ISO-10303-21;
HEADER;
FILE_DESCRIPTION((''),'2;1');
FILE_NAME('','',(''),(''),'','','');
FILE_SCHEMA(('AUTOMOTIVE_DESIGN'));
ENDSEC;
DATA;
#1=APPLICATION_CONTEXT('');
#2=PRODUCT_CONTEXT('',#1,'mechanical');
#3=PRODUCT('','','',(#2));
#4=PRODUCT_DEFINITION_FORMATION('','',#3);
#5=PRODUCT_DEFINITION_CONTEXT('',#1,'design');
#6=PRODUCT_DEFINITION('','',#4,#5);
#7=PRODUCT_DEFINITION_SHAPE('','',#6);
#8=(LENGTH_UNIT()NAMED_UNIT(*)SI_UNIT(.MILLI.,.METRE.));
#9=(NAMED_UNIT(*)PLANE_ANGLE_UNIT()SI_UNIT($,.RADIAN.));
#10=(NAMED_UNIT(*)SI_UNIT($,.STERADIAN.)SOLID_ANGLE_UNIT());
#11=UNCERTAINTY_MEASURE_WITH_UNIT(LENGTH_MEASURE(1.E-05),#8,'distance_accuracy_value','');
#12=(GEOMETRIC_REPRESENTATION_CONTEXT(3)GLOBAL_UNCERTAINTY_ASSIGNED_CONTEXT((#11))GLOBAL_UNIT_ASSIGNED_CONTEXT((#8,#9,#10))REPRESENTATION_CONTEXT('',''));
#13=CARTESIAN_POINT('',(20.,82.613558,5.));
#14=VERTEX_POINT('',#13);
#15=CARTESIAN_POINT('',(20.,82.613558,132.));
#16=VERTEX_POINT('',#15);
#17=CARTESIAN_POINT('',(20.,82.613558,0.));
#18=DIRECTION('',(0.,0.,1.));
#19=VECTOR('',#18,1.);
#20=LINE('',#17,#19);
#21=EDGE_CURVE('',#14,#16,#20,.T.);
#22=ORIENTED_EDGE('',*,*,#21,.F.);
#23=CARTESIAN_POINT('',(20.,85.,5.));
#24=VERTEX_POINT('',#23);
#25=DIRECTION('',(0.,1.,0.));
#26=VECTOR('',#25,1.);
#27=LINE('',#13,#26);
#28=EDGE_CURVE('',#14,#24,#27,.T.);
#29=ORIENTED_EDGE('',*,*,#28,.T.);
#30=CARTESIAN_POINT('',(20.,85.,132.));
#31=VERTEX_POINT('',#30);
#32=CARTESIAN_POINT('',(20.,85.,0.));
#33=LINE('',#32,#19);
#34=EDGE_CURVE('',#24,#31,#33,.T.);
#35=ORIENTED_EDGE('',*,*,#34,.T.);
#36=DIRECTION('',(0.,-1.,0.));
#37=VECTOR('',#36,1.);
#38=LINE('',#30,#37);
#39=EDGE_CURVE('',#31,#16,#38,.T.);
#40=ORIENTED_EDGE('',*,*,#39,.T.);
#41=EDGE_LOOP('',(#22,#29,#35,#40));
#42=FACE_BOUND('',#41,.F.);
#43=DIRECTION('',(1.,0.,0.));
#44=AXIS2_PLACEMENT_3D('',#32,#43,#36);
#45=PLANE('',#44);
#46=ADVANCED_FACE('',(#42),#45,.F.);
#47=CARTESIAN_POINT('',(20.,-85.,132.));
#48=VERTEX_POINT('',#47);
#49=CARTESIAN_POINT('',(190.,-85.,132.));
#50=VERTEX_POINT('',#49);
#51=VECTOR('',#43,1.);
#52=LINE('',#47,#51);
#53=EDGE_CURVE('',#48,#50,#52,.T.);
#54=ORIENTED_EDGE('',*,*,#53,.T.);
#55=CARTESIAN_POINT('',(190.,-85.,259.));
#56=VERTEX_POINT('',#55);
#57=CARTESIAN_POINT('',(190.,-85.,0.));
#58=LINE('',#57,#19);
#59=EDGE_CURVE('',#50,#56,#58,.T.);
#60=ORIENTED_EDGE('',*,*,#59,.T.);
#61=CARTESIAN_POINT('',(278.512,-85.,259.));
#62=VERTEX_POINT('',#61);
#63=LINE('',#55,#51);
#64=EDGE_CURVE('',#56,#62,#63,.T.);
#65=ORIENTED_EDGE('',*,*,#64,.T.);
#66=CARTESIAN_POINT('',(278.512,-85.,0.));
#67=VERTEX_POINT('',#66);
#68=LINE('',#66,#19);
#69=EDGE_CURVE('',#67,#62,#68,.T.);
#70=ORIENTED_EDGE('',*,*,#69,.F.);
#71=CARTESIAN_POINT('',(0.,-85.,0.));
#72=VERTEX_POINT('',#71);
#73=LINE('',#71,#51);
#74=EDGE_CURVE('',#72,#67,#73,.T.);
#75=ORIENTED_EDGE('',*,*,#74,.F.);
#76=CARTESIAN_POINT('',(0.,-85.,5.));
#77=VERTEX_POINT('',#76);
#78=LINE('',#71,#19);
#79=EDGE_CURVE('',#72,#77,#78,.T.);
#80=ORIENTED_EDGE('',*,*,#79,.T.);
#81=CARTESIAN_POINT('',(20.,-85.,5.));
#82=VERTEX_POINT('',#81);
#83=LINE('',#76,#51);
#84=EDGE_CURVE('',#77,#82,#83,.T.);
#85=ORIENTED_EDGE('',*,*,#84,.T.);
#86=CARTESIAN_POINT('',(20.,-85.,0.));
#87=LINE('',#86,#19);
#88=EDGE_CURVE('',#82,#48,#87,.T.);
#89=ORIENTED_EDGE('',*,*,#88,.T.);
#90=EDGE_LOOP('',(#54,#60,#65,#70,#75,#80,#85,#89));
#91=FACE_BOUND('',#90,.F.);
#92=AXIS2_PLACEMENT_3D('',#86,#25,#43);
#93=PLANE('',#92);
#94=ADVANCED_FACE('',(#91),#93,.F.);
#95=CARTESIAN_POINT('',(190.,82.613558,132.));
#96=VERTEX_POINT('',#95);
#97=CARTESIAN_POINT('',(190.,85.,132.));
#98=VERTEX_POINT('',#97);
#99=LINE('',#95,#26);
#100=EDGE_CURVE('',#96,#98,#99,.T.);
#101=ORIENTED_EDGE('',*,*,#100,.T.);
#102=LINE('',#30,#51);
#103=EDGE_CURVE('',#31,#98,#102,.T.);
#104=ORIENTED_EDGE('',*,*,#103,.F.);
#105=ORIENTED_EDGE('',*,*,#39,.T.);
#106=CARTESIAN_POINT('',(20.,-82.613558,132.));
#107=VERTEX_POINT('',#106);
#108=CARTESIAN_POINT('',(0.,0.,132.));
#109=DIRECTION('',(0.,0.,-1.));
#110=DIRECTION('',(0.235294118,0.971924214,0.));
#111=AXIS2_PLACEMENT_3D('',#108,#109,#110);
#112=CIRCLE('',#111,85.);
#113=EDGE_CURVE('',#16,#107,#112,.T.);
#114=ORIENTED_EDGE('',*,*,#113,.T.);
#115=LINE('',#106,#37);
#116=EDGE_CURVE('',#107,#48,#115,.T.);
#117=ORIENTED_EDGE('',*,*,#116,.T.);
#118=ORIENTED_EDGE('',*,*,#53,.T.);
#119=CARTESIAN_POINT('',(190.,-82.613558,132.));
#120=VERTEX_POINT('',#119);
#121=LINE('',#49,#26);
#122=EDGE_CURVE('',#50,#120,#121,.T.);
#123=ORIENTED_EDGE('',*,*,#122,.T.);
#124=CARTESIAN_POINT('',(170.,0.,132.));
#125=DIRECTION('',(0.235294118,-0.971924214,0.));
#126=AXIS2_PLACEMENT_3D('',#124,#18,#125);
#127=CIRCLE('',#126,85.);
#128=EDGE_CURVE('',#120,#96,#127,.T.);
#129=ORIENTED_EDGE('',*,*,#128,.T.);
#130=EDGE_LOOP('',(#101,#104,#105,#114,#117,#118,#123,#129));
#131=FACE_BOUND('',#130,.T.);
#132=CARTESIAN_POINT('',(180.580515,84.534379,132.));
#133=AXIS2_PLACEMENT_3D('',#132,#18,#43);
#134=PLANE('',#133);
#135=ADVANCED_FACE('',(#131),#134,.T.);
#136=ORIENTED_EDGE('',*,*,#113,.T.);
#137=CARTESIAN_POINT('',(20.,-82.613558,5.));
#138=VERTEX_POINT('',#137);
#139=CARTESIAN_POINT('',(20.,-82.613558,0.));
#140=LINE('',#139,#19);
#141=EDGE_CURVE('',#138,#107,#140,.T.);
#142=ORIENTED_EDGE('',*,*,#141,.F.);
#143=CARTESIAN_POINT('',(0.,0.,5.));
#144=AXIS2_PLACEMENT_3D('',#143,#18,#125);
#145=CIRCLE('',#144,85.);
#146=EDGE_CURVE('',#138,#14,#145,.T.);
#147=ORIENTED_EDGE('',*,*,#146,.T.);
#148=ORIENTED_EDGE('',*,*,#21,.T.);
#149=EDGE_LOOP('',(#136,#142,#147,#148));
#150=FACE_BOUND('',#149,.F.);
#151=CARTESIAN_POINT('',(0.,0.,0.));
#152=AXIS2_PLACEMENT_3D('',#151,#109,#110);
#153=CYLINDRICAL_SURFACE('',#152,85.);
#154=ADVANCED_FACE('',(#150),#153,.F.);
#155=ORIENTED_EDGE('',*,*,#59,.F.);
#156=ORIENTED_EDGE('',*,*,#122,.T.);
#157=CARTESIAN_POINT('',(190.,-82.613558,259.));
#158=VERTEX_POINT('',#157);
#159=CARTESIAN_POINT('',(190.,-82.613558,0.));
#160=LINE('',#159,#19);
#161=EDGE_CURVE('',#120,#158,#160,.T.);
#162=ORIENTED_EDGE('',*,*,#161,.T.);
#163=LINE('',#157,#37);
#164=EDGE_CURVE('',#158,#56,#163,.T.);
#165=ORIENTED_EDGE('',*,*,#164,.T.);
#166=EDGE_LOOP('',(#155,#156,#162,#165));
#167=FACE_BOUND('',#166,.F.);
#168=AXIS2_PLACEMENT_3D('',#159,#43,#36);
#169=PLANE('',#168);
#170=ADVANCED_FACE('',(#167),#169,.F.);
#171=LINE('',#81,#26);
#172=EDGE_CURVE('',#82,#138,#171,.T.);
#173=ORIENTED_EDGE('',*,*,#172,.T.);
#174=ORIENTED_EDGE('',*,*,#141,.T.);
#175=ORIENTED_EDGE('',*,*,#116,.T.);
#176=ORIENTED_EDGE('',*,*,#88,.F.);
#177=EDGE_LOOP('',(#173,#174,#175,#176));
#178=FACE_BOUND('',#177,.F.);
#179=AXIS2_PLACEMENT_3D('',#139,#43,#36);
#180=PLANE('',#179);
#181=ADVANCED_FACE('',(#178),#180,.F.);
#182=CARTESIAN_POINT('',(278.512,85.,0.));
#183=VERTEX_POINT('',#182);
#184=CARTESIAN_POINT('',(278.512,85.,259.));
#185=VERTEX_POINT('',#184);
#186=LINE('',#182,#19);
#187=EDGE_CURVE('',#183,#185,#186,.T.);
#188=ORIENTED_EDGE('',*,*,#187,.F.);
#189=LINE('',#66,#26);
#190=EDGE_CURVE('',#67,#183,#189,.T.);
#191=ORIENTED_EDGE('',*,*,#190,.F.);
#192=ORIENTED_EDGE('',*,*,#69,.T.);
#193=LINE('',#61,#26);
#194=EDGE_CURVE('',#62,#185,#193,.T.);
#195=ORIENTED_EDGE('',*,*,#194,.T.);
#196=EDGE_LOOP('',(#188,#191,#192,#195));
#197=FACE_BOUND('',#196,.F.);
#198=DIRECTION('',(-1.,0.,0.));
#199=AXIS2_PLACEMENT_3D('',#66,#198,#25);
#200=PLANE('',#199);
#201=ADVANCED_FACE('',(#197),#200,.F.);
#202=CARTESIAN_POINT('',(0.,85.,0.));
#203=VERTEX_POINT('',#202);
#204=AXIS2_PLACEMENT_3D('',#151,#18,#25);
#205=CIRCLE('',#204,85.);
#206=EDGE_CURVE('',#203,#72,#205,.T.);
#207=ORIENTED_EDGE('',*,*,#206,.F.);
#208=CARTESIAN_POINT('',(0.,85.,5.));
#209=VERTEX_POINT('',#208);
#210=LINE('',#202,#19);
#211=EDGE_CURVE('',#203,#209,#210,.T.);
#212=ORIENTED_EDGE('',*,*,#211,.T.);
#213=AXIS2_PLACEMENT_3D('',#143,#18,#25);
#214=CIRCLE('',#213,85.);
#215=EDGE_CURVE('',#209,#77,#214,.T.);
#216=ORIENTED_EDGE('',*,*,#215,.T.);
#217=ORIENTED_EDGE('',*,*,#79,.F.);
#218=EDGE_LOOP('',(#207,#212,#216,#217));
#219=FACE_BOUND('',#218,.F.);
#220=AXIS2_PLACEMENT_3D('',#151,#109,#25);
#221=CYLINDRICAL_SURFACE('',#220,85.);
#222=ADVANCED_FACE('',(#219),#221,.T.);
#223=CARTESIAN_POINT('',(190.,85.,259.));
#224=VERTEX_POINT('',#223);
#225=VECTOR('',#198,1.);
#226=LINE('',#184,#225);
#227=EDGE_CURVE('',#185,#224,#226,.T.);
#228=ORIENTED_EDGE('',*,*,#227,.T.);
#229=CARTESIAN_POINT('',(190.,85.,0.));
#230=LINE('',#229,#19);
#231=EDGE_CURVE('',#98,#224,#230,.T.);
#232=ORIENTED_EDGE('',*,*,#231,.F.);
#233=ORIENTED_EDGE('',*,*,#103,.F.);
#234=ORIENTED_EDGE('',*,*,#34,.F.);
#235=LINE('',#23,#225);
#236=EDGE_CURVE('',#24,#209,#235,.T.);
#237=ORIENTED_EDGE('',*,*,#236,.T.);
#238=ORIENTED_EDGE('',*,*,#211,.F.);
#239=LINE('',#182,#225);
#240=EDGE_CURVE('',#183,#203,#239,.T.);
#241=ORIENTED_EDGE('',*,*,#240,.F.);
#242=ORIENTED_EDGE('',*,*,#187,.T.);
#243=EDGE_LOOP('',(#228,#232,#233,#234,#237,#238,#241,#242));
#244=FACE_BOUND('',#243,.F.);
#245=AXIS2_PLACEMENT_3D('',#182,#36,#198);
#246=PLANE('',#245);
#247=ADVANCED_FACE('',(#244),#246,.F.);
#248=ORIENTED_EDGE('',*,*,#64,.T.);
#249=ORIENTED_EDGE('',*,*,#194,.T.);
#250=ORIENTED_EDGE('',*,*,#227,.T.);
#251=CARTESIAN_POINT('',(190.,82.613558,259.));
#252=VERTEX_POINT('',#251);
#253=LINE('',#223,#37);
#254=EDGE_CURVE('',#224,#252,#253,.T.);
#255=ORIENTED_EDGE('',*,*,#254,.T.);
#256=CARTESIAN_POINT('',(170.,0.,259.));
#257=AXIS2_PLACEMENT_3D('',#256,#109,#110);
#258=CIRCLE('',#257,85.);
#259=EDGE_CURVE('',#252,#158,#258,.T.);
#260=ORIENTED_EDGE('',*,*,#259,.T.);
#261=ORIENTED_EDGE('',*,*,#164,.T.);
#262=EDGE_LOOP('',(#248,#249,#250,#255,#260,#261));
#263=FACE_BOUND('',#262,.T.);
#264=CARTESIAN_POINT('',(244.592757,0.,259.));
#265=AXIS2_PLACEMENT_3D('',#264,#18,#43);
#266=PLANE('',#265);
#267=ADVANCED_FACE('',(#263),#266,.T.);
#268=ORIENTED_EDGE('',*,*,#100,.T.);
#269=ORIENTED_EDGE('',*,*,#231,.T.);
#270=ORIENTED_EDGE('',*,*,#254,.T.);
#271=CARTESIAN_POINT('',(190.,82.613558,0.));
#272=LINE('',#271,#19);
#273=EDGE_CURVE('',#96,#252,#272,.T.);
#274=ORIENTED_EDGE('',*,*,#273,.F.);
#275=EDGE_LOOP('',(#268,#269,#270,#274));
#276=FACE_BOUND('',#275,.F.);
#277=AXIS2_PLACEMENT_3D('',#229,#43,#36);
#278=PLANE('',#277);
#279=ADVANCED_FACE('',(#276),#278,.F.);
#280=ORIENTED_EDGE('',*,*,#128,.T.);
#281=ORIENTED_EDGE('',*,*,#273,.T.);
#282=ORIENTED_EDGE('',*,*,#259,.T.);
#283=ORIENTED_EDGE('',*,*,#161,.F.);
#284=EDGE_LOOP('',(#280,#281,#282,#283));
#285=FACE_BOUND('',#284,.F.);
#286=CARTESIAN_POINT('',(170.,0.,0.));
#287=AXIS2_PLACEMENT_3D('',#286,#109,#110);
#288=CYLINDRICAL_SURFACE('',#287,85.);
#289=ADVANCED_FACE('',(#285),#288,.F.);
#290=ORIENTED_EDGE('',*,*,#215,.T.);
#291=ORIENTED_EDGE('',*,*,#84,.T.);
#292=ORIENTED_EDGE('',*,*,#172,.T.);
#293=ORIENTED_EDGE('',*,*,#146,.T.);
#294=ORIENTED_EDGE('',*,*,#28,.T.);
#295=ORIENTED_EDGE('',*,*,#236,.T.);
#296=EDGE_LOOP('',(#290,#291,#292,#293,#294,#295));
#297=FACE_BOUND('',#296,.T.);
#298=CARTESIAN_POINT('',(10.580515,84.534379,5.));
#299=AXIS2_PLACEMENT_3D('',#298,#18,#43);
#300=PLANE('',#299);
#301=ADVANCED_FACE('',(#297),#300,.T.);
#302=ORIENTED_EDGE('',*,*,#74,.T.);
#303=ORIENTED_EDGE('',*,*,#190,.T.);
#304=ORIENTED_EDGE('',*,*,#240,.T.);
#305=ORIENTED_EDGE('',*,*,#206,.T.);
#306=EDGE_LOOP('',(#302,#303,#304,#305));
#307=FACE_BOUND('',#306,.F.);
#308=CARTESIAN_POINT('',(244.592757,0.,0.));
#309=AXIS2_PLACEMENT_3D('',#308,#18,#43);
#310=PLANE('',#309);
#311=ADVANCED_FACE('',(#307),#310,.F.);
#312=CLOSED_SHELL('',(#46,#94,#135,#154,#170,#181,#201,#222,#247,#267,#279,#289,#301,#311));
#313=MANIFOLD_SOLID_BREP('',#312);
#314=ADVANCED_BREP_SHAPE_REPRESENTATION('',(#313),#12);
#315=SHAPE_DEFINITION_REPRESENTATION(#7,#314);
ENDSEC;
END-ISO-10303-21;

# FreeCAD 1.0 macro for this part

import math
import FreeCAD as App
import Part
import Sketcher
Q = App.Units.Quantity

doc = App.newDocument("Part")
body = doc.addObject("PartDesign::Body", "Body")

# Sketch on XY plane
sketch1 = doc.addObject("Sketcher::SketchObject", "Sketch")
body.addObject(sketch1)
sketch1.AttachmentSupport = (doc.XY_Plane, [""])
sketch1.MapMode = "FlatFace"
sketch1.addGeometry([
    Part.ArcOfCircle(Part.Circle(App.Vector(0, 0, 0), App.Vector(0, 0, 1), 85), math.radians(-76), math.radians(76)),
    Part.ArcOfCircle(Part.Circle(App.Vector(0, 0, 0), App.Vector(0, 0, 1), 85), math.radians(76.39), math.radians(90)),
    Part.ArcOfCircle(Part.Circle(App.Vector(0, 0, 0), App.Vector(0, 0, 1), 85), math.radians(90), math.radians(270)),
    Part.ArcOfCircle(Part.Circle(App.Vector(0, 0, 0), App.Vector(0, 0, 1), 85), math.radians(-90), math.radians(-76.39)),
], False)
sketch1.addConstraint([
    Sketcher.Constraint("Tangent", 0, 2, 1, 1),
    Sketcher.Constraint("Tangent", 1, 2, 2, 1),
    Sketcher.Constraint("Tangent", 2, 2, 3, 1),
    Sketcher.Constraint("Tangent", 3, 2, 0, 1),
    Sketcher.Constraint("Coincident", 0, 3, -1, 1),
    Sketcher.Constraint("Equal", 0, 1),
    Sketcher.Constraint("PointOnObject", 1, 2, -2),
    Sketcher.Constraint("PointOnObject", 2, 2, -2),
    Sketcher.Constraint("Vertical", 0, 2, 3, 2),
    Sketcher.Constraint("Radius", 0, Q("85 mm")),
    Sketcher.Constraint("DistanceX", -1, 1, 0, 2, Q("20 mm")),
])
pad1 = doc.addObject("PartDesign::Pad", "Pad")
body.addObject(pad1)
pad1.Profile = sketch1
pad1.Length = 5

# Sketch on XY plane
sketch2 = doc.addObject("Sketcher::SketchObject", "Sketch001")
body.addObject(sketch2)
sketch2.AttachmentSupport = (doc.XY_Plane, [""])
sketch2.MapMode = "FlatFace"
sketch2.addGeometry([
    Part.ArcOfCircle(Part.Circle(App.Vector(0, 0, 0), App.Vector(0, 0, 1), 85), math.radians(76.39), math.radians(90)),  # 0
    Part.LineSegment(App.Vector(20, 82.6, 0), App.Vector(20, 85, 0)),  # 1
    Part.LineSegment(App.Vector(20, 85, 0), App.Vector(0, 85, 0)),  # 2
    Part.LineSegment(App.Vector(20, -85, 0), App.Vector(20, -82.6, 0)),  # 3
    Part.ArcOfCircle(Part.Circle(App.Vector(0, 0, 0), App.Vector(0, 0, 1), 85), math.radians(-90), math.radians(-76.39)),  # 4
    Part.LineSegment(App.Vector(0, -85, 0), App.Vector(20, -85, 0)),  # 5
], False)
sketch2.addConstraint([
    Sketcher.Constraint("Coincident", 0, 1, 1, 1),
    Sketcher.Constraint("Coincident", 1, 2, 2, 1),
    Sketcher.Constraint("Tangent", 2, 2, 0, 2),
    Sketcher.Constraint("Coincident", 3, 2, 4, 2),
    Sketcher.Constraint("Tangent", 4, 1, 5, 1),
    Sketcher.Constraint("Coincident", 5, 2, 3, 1),
    Sketcher.Constraint("Vertical", 1),
    Sketcher.Constraint("Horizontal", 2),
    Sketcher.Constraint("Vertical", 3),
    Sketcher.Constraint("Horizontal", 5),
    Sketcher.Constraint("Coincident", 0, 3, -1, 1),
    Sketcher.Constraint("Coincident", 4, 3, -1, 1),
    Sketcher.Constraint("Equal", 0, 4),
    Sketcher.Constraint("Vertical", 1, 2, 3, 2),
    Sketcher.Constraint("Radius", 0, Q("85 mm")),
    Sketcher.Constraint("DistanceX", 2, 2, 2, 1, Q("20 mm")),
])
pad2 = doc.addObject("PartDesign::Pad", "Pad001")
body.addObject(pad2)
pad2.Profile = sketch2
pad2.Length = 5

# Sketch on XY plane
sketch3 = doc.addObject("Sketcher::SketchObject", "Sketch002")
body.addObject(sketch3)
sketch3.AttachmentSupport = (doc.XY_Plane, [""])
sketch3.MapMode = "FlatFace"
sketch3.addGeometry([
    Part.LineSegment(App.Vector(20, -82.6, 0), App.Vector(20, -85, 0)),  # 0
    Part.LineSegment(App.Vector(20, -85, 0), App.Vector(170, -85, 0)),  # 1
    Part.ArcOfCircle(Part.Circle(App.Vector(170, 0, 0), App.Vector(0, 0, 1), 85), math.radians(-90), math.radians(-76.39)),  # 2
    Part.ArcOfCircle(Part.Circle(App.Vector(170, 0, 0), App.Vector(0, 0, 1), 85), math.radians(-76), math.radians(76)),  # 3
    Part.ArcOfCircle(Part.Circle(App.Vector(170, 0, 0), App.Vector(0, 0, 1), 85), math.radians(76.39), math.radians(90)),  # 4
    Part.LineSegment(App.Vector(170, 85, 0), App.Vector(20, 85, 0)),  # 5
    Part.LineSegment(App.Vector(20, 85, 0), App.Vector(20, 82.6, 0)),  # 6
    Part.ArcOfCircle(Part.Circle(App.Vector(0, 0, 0), App.Vector(0, 0, 1), 85), math.radians(-76), math.radians(76)),  # 7
], False)
sketch3.addConstraint([
    Sketcher.Constraint("Coincident", 0, 2, 1, 1),
    Sketcher.Constraint("Tangent", 1, 2, 2, 1),
    Sketcher.Constraint("Tangent", 2, 2, 3, 1),
    Sketcher.Constraint("Tangent", 3, 2, 4, 1),
    Sketcher.Constraint("Tangent", 4, 2, 5, 1),
    Sketcher.Constraint("Coincident", 5, 2, 6, 1),
    Sketcher.Constraint("Coincident", 6, 2, 7, 2),
    Sketcher.Constraint("Coincident", 7, 1, 0, 1),
    Sketcher.Constraint("Vertical", 0),
    Sketcher.Constraint("Horizontal", 1),
    Sketcher.Constraint("Horizontal", 5),
    Sketcher.Constraint("Vertical", 6),
    Sketcher.Constraint("Coincident", 7, 3, -1, 1),
    Sketcher.Constraint("Coincident", 4, 3, 2, 3),
    Sketcher.Constraint("Equal", 4, 7),
    Sketcher.Constraint("Symmetric", 2, 2, 3, 2, -1),
    Sketcher.Constraint("Horizontal", 3, 2, 6, 2),
    Sketcher.Constraint("Horizontal", 2, 2, 7, 1),
    Sketcher.Constraint("Radius", 2, Q("85 mm")),
    Sketcher.Constraint("DistanceX", 1, 1, 1, 2, Q("150 mm")),
    Sketcher.Constraint("DistanceX", -1, 1, 2, 3, Q("170 mm")),
])
pad3 = doc.addObject("PartDesign::Pad", "Pad002")
body.addObject(pad3)
pad3.Profile = sketch3
pad3.Length = 132

# Sketch on XY plane
sketch4 = doc.addObject("Sketcher::SketchObject", "Sketch003")
body.addObject(sketch4)
sketch4.AttachmentSupport = (doc.XY_Plane, [""])
sketch4.MapMode = "FlatFace"
sketch4.addGeometry([
    Part.LineSegment(App.Vector(190, 85, 0), App.Vector(170, 85, 0)),  # 0
    Part.ArcOfCircle(Part.Circle(App.Vector(170, 0, 0), App.Vector(0, 0, 1), 85), math.radians(76.39), math.radians(90)),  # 1
    Part.LineSegment(App.Vector(190, 82.6, 0), App.Vector(190, 85, 0)),  # 2
    Part.ArcOfCircle(Part.Circle(App.Vector(170, 0, 0), App.Vector(0, 0, 1), 85), math.radians(-90), math.radians(-76.39)),  # 3
    Part.LineSegment(App.Vector(170, -85, 0), App.Vector(190, -85, 0)),  # 4
    Part.LineSegment(App.Vector(190, -85, 0), App.Vector(190, -82.6, 0)),  # 5
], False)
sketch4.addConstraint([
    Sketcher.Constraint("Tangent", 0, 2, 1, 2),
    Sketcher.Constraint("Coincident", 1, 1, 2, 1),
    Sketcher.Constraint("Coincident", 2, 2, 0, 1),
    Sketcher.Constraint("Tangent", 3, 1, 4, 1),
    Sketcher.Constraint("Coincident", 4, 2, 5, 1),
    Sketcher.Constraint("Coincident", 5, 2, 3, 2),
    Sketcher.Constraint("Horizontal", 0),
    Sketcher.Constraint("Vertical", 2),
    Sketcher.Constraint("Horizontal", 4),
    Sketcher.Constraint("Vertical", 5),
    Sketcher.Constraint("Coincident", 3, 3, 1, 3),
    Sketcher.Constraint("Equal", 1, 3),
    Sketcher.Constraint("Symmetric", 2, 2, 4, 2, -1),
    Sketcher.Constraint("Radius", 1, Q("85 mm")),
    Sketcher.Constraint("DistanceX", 0, 2, 0, 1, Q("20 mm")),
    Sketcher.Constraint("DistanceX", -1, 1, 1, 3, Q("170 mm")),
])
pad4 = doc.addObject("PartDesign::Pad", "Pad003")
body.addObject(pad4)
pad4.Profile = sketch4
pad4.Length = 132

# Sketch on XY plane
sketch5 = doc.addObject("Sketcher::SketchObject", "Sketch004")
body.addObject(sketch5)
sketch5.AttachmentSupport = (doc.XY_Plane, [""])
sketch5.MapMode = "FlatFace"
sketch5.addGeometry([
    Part.LineSegment(App.Vector(190, 85, 0), App.Vector(190, 82.6, 0)),  # 0
    Part.ArcOfCircle(Part.Circle(App.Vector(170, 0, 0), App.Vector(0, 0, 1), 85), math.radians(-76), math.radians(76)),  # 1
    Part.LineSegment(App.Vector(190, -82.6, 0), App.Vector(190, -85, 0)),  # 2
    Part.LineSegment(App.Vector(190, -85, 0), App.Vector(278.5, -85, 0)),  # 3
    Part.LineSegment(App.Vector(278.5, -85, 0), App.Vector(278.5, 85, 0)),  # 4
    Part.LineSegment(App.Vector(278.5, 85, 0), App.Vector(190, 85, 0)),  # 5
], False)
sketch5.addConstraint([
    Sketcher.Constraint("Coincident", 0, 2, 1, 2),
    Sketcher.Constraint("Coincident", 1, 1, 2, 1),
    Sketcher.Constraint("Coincident", 2, 2, 3, 1),
    Sketcher.Constraint("Coincident", 3, 2, 4, 1),
    Sketcher.Constraint("Coincident", 4, 2, 5, 1),
    Sketcher.Constraint("Coincident", 5, 2, 0, 1),
    Sketcher.Constraint("Vertical", 0),
    Sketcher.Constraint("Vertical", 2),
    Sketcher.Constraint("Horizontal", 3),
    Sketcher.Constraint("Vertical", 4),
    Sketcher.Constraint("Horizontal", 5),
    Sketcher.Constraint("Symmetric", 0, 2, 1, 1, -1),
    Sketcher.Constraint("Equal", 0, 2),
    Sketcher.Constraint("Radius", 1, Q("85 mm")),
    Sketcher.Constraint("DistanceY", 4, 1, 4, 2, Q("170 mm")),
    Sketcher.Constraint("DistanceX", -1, 1, 1, 3, Q("170 mm")),
    Sketcher.Constraint("DistanceX", -1, 1, 0, 2, Q("190 mm")),
    Sketcher.Constraint("DistanceX", 3, 1, 3, 2, Q("88.512 mm")),
])
pad5 = doc.addObject("PartDesign::Pad", "Pad004")
body.addObject(pad5)
pad5.Profile = sketch5
pad5.Length = 259

doc.recompute()
